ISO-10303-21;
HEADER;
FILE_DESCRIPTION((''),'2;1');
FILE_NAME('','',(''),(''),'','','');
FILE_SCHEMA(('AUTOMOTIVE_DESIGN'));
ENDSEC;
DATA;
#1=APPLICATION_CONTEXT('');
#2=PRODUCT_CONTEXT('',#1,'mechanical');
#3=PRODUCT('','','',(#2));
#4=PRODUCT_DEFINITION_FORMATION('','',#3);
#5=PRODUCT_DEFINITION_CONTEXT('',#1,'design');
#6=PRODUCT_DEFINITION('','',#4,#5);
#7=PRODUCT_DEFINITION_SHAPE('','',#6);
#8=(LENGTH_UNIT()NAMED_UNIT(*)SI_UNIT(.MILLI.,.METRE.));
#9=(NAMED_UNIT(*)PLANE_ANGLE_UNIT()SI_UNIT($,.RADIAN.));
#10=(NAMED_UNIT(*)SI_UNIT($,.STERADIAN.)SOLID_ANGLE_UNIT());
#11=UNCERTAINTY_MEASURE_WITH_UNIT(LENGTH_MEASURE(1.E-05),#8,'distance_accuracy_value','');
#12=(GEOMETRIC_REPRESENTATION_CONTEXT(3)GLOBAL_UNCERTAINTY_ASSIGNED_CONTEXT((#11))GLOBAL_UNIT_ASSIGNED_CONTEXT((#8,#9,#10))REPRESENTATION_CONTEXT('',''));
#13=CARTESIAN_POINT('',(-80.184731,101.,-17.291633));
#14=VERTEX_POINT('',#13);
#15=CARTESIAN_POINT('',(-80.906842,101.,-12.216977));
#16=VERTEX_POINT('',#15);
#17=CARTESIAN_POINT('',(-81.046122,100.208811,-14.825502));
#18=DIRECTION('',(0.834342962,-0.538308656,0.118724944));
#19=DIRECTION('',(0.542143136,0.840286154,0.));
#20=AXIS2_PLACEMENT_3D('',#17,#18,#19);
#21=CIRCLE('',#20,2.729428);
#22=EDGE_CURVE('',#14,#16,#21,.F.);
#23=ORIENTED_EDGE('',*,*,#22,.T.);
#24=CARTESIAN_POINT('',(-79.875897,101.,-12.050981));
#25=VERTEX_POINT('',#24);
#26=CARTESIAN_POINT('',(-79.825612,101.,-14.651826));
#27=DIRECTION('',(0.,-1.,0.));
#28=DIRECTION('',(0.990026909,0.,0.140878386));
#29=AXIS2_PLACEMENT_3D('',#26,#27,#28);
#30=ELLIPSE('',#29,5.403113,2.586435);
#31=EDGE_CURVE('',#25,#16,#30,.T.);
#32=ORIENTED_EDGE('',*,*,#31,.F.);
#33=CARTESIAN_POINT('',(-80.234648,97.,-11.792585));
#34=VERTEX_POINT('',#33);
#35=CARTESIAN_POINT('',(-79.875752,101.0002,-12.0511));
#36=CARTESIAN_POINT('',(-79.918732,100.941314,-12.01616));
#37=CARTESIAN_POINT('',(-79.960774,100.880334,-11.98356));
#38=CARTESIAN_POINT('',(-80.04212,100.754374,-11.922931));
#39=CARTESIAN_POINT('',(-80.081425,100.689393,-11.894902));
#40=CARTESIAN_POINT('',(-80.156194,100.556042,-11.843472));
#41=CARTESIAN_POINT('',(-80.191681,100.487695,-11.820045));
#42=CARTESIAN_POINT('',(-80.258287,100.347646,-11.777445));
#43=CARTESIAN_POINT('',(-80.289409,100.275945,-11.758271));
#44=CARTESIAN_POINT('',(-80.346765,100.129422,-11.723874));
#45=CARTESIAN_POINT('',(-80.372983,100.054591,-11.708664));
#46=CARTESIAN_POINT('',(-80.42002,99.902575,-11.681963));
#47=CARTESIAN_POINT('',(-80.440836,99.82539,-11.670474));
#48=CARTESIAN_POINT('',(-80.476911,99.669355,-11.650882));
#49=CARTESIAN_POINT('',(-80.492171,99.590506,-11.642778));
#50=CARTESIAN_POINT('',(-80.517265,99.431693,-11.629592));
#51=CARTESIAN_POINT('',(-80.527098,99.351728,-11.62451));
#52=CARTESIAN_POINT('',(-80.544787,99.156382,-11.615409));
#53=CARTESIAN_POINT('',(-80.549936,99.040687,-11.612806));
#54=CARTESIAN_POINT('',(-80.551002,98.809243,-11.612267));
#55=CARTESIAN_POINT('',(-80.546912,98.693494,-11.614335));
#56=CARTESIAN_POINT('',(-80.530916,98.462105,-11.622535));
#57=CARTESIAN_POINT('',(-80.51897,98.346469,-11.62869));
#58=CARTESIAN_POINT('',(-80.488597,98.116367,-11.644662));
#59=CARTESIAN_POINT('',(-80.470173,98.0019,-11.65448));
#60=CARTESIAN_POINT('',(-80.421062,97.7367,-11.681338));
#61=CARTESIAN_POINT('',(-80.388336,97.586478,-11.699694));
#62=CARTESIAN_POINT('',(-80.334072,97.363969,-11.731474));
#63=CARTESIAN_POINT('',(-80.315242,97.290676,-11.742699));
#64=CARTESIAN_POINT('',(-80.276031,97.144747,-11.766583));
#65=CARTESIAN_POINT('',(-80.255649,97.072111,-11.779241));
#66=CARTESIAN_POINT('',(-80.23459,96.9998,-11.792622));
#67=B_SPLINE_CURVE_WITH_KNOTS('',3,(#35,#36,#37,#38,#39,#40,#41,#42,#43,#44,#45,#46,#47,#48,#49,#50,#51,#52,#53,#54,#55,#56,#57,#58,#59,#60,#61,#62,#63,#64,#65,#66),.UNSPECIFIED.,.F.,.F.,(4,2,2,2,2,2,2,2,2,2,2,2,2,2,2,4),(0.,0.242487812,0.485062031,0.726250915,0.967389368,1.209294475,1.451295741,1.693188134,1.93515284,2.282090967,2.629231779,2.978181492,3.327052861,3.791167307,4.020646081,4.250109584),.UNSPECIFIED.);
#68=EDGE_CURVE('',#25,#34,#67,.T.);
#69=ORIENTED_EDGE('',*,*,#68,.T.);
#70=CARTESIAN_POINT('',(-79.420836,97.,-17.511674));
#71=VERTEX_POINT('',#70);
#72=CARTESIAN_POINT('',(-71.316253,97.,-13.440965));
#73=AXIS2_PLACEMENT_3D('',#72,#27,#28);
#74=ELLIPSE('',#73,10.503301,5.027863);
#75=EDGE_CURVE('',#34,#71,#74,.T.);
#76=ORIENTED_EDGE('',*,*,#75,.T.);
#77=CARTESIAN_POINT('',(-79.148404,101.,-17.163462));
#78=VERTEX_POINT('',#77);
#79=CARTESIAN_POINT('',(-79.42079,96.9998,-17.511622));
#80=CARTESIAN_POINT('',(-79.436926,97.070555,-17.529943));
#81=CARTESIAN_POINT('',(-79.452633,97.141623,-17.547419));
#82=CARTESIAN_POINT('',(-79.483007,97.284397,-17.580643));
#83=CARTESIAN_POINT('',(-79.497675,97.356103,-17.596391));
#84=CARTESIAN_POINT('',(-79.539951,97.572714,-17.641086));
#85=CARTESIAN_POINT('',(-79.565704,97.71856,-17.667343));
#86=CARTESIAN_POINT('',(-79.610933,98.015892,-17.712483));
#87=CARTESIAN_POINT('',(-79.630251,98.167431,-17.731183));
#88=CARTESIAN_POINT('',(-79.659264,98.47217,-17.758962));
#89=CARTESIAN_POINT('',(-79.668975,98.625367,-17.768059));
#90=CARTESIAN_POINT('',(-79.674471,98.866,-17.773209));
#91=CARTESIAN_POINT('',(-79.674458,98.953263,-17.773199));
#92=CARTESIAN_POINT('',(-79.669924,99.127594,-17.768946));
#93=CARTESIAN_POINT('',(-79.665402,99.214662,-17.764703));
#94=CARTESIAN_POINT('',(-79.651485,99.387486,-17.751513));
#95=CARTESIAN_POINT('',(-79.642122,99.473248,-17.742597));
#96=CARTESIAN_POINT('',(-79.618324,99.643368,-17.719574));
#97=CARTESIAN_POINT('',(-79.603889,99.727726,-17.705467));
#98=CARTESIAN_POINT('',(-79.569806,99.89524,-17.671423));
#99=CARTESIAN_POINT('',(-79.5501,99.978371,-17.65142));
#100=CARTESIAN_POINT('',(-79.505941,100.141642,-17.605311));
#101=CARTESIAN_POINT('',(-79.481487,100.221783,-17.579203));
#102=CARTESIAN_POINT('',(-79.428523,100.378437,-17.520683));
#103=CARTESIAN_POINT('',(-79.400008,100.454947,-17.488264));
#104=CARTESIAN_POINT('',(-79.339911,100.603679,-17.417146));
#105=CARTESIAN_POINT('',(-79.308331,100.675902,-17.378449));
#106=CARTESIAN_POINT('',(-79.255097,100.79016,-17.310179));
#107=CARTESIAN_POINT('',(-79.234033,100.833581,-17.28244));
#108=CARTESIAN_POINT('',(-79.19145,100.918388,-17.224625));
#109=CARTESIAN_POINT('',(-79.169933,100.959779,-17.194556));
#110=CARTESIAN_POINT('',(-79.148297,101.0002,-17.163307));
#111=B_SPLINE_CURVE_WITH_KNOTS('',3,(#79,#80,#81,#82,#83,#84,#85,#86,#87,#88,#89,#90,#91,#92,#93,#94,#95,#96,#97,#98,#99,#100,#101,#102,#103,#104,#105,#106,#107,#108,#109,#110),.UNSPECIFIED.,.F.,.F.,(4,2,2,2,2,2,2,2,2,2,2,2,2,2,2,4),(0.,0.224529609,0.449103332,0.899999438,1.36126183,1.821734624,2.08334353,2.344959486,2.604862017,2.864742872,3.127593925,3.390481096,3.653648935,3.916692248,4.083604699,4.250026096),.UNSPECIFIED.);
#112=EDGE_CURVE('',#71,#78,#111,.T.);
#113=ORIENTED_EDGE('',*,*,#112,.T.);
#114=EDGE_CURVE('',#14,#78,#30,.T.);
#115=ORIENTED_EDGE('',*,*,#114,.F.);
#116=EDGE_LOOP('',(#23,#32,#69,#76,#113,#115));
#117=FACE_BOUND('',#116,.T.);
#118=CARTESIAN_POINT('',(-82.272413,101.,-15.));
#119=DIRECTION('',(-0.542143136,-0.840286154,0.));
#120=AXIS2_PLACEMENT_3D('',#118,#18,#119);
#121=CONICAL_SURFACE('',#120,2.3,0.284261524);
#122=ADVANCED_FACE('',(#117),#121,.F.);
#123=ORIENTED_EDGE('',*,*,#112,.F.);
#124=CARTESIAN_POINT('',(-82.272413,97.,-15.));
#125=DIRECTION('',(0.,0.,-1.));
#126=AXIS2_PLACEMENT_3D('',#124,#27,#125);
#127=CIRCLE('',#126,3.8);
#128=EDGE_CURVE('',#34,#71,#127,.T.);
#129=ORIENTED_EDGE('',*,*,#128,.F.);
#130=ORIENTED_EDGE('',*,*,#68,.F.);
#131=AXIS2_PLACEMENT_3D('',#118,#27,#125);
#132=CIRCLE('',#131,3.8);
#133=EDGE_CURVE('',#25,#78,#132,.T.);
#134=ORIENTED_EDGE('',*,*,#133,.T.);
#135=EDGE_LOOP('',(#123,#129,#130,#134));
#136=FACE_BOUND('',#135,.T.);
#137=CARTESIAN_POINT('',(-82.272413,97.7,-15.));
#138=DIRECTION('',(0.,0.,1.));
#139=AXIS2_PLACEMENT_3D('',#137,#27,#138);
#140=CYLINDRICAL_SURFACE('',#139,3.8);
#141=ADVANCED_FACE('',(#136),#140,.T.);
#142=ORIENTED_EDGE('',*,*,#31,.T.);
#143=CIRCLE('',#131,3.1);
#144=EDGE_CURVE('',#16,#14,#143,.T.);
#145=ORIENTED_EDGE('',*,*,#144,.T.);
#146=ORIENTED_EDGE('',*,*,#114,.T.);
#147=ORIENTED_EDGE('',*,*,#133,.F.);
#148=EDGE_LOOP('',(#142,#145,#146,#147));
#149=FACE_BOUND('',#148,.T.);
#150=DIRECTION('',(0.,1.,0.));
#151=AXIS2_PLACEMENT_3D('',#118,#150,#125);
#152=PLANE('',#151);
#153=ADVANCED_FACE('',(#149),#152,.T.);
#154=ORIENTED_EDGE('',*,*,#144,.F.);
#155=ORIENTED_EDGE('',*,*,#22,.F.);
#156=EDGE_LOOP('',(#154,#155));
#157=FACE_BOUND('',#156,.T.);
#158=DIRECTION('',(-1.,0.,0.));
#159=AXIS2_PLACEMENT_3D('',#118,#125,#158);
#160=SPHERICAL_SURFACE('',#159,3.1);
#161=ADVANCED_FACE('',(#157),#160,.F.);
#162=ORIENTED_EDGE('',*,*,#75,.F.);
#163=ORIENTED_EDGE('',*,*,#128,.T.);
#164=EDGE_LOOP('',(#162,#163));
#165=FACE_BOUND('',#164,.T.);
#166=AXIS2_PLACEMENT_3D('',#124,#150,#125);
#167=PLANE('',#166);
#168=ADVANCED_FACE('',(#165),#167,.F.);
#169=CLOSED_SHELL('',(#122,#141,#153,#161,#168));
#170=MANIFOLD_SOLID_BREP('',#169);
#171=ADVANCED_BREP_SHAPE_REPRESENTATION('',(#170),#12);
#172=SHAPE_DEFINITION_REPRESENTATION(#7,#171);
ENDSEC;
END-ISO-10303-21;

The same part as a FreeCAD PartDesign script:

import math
import FreeCAD as App
import Part
import Sketcher


def add_polygon(sketch, points):
    """Adds a closed chain of lines whose ends are joined by coincident constraints."""
    first, n = sketch.GeometryCount, len(points)
    for a, b in zip(points, points[1:] + points[:1]):
        sketch.addGeometry(Part.LineSegment(App.Vector(*a, 0), App.Vector(*b, 0)), False)
    for i in range(n):
        sketch.addConstraint(Sketcher.Constraint("Coincident", first + i, 2, first + (i + 1) % n, 1))

doc = App.newDocument("Part")
body = doc.addObject("PartDesign::Body", "Body")

sketch1 = doc.addObject("Sketcher::SketchObject", "Sketch")
body.addObject(sketch1)
sketch1.AttachmentSupport = (doc.XZ_Plane, [""])
sketch1.MapMode = "FlatFace"
sketch1.AttachmentOffset = App.Placement(App.Vector(0, 0, 97), App.Rotation())
sketch1.addGeometry([
    Part.LineSegment(App.Vector(-79.272413, -17.332381, 0), App.Vector(-79.272413, -12.667619, 0)),
    Part.ArcOfCircle(Part.Circle(App.Vector(-82.272413, -15, 0), App.Vector(0, 0, 1), 3.8), math.radians(37.863646), math.radians(322.136354)),
], False)
sketch1.addConstraint([
    Sketcher.Constraint("Coincident", 0, 1, 1, 2),
    Sketcher.Constraint("Coincident", 1, 1, 0, 2),
    Sketcher.Constraint("Vertical", 0),
    Sketcher.Constraint("Radius", 1, 3.8),
    Sketcher.Constraint("DistanceY", 1, 3, -1, 1, 15.0),
    Sketcher.Constraint("DistanceX", 1, 3, 0, 1, 3.0),
    Sketcher.Constraint("DistanceX", 1, 3, -1, 1, 82.272413),
])
pad1 = doc.addObject("PartDesign::Pad", "Pad")
body.addObject(pad1)
pad1.Profile = sketch1
pad1.Length = 0.7

sketch2 = doc.addObject("Sketcher::SketchObject", "Sketch001")
body.addObject(sketch2)
sketch2.AttachmentSupport = (doc.XZ_Plane, [""])
sketch2.MapMode = "FlatFace"
sketch2.AttachmentOffset = App.Placement(App.Vector(0, 0, 97.7), App.Rotation())
sketch2.addGeometry(Part.Circle(App.Vector(-82.272413, -15, 0), App.Vector(0, 0, 1), 3.8), False)
sketch2.addConstraint([
    Sketcher.Constraint("Diameter", 0, 7.6),
    Sketcher.Constraint("DistanceY", 0, 3, -1, 1, 15.0),
    Sketcher.Constraint("DistanceX", 0, 3, -1, 1, 82.272413),
])
pad2 = doc.addObject("PartDesign::Pad", "Pad001")
body.addObject(pad2)
pad2.Profile = sketch2
pad2.Length = 3.3

sketch3 = doc.addObject("Sketcher::SketchObject", "Sketch002")
body.addObject(sketch3)
sketch3.AttachmentSupport = (doc.XZ_Plane, [""])
sketch3.MapMode = "FlatFace"
sketch3.AttachmentOffset = App.Placement(App.Vector(0, 0, 101), App.Rotation())
sketch3.addGeometry([
    Part.LineSegment(App.Vector(-82.272413, -11.9, 0), App.Vector(-82.272413, -18.1, 0)),
    Part.ArcOfCircle(Part.Circle(App.Vector(-82.272413, -15, 0), App.Vector(0, 0, 1), 3.1), math.radians(-90), math.radians(90)),
], False)
sketch3.addGeometry(Part.LineSegment(App.Vector(-82.272413, -18.1, 0), App.Vector(-82.272413, -11.9, 0)), True)
sketch3.addConstraint([
    Sketcher.Constraint("Coincident", 0, 1, 1, 2),
    Sketcher.Constraint("Coincident", 1, 1, 0, 2),
    Sketcher.Constraint("Vertical", 0),
    Sketcher.Constraint("Vertical", 2),
    Sketcher.Constraint("Coincident", 2, 1, 1, 1),
    Sketcher.Constraint("Vertical", 1, 3, 0, 1),
    Sketcher.Constraint("Equal", 0, 2),
    Sketcher.Constraint("Radius", 1, 3.1),
    Sketcher.Constraint("DistanceY", 1, 3, -1, 1, 15.0),
    Sketcher.Constraint("DistanceX", 1, 3, -1, 1, 82.272413),
])
groove = doc.addObject("PartDesign::Groove", "Groove")
body.addObject(groove)
groove.Profile = sketch3
groove.ReferenceAxis = (sketch3, ["Axis0"])
groove.Angle = 360

sketch4 = doc.addObject("Sketcher::SketchObject", "Sketch003")
body.addObject(sketch4)
sketch4.Placement = App.Placement(App.Vector(21.84813, -32.292361, -7.122139), App.Rotation(App.Vector(-0.834342962, -0.538308656, -0.118724944), App.Vector(-0.000000001, 0.215375729, -0.976531256), App.Vector(0.5512457, -0.814761981, -0.179697224), "ZXY"))
add_polygon(sketch4, [(124.793457, -7.10498), (124.793457, -4.80498), (101.793457, 1.91502), (101.793457, -7.10498)])
sketch4.addGeometry(Part.LineSegment(App.Vector(124.793457, -7.10498, 0), App.Vector(101.793457, -7.10498, 0)), True)
sketch4.addConstraint([
    Sketcher.Constraint("Vertical", 0),
    Sketcher.Constraint("Vertical", 2),
    Sketcher.Constraint("Horizontal", 3),
    Sketcher.Constraint("Horizontal", 4),
    Sketcher.Constraint("Coincident", 4, 1, 3, 2),
    Sketcher.Constraint("Vertical", 1, 2, 4, 2),
    Sketcher.Constraint("DistanceX", 3, 1, 3, 2, 23.0),
    Sketcher.Constraint("DistanceY", 0, 1, 0, 2, 2.3),
    Sketcher.Constraint("DistanceY", 2, 2, 2, 1, 9.02),
    Sketcher.Constraint("DistanceY", 0, 2, -1, 1, 4.80498),
    Sketcher.Constraint("DistanceX", -1, 1, 0, 2, 124.793457),
])
groove2 = doc.addObject("PartDesign::Groove", "Groove001")
body.addObject(groove2)
groove2.Profile = sketch4
groove2.ReferenceAxis = (sketch4, ["Axis0"])
groove2.Angle = 360
body2 = doc.addObject("PartDesign::Body", "Body001")
doc.recompute()

mirroring = doc.addObject("Part::Mirroring", "Mirroring")
mirroring.Source = body
mirroring.Base = App.Vector(0, 0, 0)
mirroring.Normal = App.Vector(0, -1, 0)
body2.BaseFeature = mirroring
doc.recompute()
body.Visibility = False
mirroring.Visibility = False

doc.recompute()
